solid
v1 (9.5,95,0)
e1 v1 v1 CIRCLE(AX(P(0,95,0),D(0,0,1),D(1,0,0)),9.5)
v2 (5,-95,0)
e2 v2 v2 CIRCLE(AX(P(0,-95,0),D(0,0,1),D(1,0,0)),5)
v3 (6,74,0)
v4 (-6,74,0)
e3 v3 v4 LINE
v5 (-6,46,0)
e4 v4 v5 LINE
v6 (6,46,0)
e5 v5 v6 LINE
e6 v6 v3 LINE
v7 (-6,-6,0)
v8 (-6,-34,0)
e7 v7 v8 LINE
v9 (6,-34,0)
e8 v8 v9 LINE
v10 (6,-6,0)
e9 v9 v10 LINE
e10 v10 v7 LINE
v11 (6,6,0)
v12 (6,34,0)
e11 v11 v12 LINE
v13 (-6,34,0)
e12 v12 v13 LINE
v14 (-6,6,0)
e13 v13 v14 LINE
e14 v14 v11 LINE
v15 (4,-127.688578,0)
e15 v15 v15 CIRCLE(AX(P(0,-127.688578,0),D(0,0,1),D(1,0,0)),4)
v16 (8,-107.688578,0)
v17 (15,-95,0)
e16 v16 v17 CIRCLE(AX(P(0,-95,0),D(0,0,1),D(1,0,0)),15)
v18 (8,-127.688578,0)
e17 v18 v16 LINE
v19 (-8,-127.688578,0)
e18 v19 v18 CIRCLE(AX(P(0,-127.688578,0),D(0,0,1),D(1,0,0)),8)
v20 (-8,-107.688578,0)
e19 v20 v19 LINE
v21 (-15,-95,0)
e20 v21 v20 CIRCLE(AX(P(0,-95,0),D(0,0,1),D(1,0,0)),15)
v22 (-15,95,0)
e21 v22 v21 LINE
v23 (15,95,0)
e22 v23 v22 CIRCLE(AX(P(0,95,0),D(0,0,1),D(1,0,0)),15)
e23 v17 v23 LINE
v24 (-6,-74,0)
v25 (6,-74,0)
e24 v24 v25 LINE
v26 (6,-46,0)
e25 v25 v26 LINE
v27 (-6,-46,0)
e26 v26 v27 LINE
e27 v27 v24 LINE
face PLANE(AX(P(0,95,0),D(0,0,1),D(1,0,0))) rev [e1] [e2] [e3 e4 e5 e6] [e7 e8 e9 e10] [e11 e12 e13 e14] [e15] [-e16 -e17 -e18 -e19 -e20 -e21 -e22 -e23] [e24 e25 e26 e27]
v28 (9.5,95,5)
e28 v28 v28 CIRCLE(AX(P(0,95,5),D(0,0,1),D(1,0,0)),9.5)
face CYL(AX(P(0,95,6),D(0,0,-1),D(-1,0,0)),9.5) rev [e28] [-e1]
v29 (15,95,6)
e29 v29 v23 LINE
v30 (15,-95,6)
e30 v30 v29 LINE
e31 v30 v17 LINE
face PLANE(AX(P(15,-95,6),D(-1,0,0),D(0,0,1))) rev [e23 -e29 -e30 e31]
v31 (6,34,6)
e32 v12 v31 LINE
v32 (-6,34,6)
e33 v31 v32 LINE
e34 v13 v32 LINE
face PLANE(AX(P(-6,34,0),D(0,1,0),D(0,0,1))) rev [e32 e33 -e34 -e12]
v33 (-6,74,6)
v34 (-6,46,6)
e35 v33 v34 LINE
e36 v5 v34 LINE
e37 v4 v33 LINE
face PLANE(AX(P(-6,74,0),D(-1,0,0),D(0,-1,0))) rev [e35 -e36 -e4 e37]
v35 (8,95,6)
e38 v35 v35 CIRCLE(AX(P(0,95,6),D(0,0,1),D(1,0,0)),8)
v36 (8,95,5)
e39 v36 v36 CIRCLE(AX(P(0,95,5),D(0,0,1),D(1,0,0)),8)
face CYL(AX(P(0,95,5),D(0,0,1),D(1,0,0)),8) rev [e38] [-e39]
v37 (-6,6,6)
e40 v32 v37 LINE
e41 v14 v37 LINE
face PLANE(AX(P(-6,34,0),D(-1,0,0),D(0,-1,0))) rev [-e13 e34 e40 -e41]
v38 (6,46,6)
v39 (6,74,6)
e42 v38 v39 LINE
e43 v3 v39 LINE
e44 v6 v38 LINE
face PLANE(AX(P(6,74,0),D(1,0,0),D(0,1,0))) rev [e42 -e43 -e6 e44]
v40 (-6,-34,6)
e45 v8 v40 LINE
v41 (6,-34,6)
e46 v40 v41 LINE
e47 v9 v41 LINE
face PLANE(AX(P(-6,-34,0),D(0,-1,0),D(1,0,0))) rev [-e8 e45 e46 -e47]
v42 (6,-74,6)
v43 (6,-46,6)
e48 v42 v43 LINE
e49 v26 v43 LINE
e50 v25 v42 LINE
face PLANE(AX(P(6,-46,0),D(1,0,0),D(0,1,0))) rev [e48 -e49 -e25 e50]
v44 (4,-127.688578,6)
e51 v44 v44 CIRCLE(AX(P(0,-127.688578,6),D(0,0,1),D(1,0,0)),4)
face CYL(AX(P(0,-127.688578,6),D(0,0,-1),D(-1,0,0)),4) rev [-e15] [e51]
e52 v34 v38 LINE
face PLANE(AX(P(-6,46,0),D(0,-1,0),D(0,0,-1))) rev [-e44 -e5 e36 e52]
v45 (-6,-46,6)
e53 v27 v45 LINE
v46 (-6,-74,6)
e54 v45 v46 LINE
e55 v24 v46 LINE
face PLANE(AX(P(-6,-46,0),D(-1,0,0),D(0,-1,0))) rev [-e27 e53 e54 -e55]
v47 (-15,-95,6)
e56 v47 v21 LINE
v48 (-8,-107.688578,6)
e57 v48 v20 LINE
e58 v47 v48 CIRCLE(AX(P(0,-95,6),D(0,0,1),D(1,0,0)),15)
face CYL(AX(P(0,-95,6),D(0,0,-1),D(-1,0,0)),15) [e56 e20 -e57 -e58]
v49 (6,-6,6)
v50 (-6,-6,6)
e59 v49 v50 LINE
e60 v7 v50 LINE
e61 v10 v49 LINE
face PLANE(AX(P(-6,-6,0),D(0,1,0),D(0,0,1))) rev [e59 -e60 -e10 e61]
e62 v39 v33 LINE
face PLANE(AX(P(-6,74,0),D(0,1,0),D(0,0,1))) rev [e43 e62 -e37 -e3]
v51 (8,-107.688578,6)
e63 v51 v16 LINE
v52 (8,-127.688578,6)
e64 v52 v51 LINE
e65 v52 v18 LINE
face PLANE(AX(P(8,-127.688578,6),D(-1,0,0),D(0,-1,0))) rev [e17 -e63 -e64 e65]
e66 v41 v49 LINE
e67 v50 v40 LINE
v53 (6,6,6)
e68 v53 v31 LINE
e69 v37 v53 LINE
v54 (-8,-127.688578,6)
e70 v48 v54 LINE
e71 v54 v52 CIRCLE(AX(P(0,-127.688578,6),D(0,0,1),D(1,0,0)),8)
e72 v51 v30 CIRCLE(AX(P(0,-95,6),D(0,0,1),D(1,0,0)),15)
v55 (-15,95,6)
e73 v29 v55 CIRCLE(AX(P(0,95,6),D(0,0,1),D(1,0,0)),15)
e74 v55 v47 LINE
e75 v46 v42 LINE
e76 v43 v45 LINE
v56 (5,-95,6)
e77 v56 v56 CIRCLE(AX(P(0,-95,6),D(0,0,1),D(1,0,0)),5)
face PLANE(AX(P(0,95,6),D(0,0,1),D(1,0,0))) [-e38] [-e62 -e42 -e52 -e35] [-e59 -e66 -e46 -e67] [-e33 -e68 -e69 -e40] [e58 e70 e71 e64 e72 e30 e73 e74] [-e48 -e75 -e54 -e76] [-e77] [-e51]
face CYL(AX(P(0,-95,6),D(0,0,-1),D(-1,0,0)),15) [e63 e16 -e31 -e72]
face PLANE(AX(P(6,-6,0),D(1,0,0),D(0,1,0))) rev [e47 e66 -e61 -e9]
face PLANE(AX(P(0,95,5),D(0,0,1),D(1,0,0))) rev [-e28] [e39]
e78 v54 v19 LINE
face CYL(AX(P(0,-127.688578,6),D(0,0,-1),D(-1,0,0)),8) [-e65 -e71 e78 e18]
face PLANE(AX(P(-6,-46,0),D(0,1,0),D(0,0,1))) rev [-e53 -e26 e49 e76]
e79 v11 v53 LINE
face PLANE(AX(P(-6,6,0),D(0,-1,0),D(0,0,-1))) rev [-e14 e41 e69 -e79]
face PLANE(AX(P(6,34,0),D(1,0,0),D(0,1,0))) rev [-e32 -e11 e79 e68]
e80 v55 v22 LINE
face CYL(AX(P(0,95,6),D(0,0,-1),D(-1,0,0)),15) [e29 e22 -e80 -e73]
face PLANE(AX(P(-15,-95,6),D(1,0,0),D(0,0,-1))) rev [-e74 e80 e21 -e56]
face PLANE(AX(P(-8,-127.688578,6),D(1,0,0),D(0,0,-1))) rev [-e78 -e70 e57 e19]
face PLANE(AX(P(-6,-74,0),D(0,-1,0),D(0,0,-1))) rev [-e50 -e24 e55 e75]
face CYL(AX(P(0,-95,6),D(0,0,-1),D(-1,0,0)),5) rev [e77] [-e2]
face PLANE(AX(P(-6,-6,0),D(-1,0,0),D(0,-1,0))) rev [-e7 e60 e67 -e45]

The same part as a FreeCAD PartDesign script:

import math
import FreeCAD as App
import Part
import Sketcher
from FreeCAD import Vector
Q = App.Units.Quantity

doc = App.newDocument("Part")
body = doc.addObject("PartDesign::Body", "Body")

sketch1 = body.newObject("Sketcher::SketchObject", "Sketch")
sketch1.AttachmentSupport = (doc.getObject("XY_Plane"), [""])
sketch1.MapMode = "FlatFace"
sketch1.addGeometry([
    Part.LineSegment(Vector(-8, -107.688578, 0), Vector(-8, -127.688578, 0)),
    Part.ArcOfCircle(Part.Circle(Vector(0, -127.688578, 0), Vector(0, 0, 1), 8), math.radians(180), math.radians(360)),
    Part.LineSegment(Vector(8, -127.688578, 0), Vector(8, -107.688578, 0)),
    Part.ArcOfCircle(Part.Circle(Vector(0, -95, 0), Vector(0, 0, 1), 15), math.radians(-57.769047), math.radians(0)),
    Part.LineSegment(Vector(15, -95, 0), Vector(15, 95, 0)),
    Part.ArcOfCircle(Part.Circle(Vector(0, 95, 0), Vector(0, 0, 1), 15), math.radians(0), math.radians(180)),
    Part.LineSegment(Vector(-15, 95, 0), Vector(-15, -95, 0)),
    Part.ArcOfCircle(Part.Circle(Vector(0, -95, 0), Vector(0, 0, 1), 15), math.radians(180), math.radians(237.769047)),
    Part.Circle(Vector(0, -127.688578, 0), Vector(0, 0, 1), 4),
    Part.Circle(Vector(0, -95, 0), Vector(0, 0, 1), 5),
    Part.Circle(Vector(0, 95, 0), Vector(0, 0, 1), 9.5),
], False)
sketch1.addConstraint([
    Sketcher.Constraint("Tangent", 0, 2, 1, 1),
    Sketcher.Constraint("Tangent", 1, 2, 2, 1),
    Sketcher.Constraint("Coincident", 2, 2, 3, 1),
    Sketcher.Constraint("Tangent", 3, 2, 4, 1),
    Sketcher.Constraint("Tangent", 4, 2, 5, 1),
    Sketcher.Constraint("Tangent", 5, 2, 6, 1),
    Sketcher.Constraint("Tangent", 6, 2, 7, 1),
    Sketcher.Constraint("Coincident", 7, 2, 0, 1),
    Sketcher.Constraint("Vertical", 0),
    Sketcher.Constraint("Vertical", 2),
    Sketcher.Constraint("Vertical", 4),
    Sketcher.Constraint("Vertical", 6),
    Sketcher.Constraint("Coincident", 7, 3, 3, 3),
    Sketcher.Constraint("Coincident", 8, 3, 1, 3),
    Sketcher.Constraint("Coincident", 9, 3, 3, 3),
    Sketcher.Constraint("Coincident", 10, 3, 5, 3),
    Sketcher.Constraint("Equal", 3, 5),
    Sketcher.Constraint("Symmetric", 3, 3, 5, 3, -1, 1),
    Sketcher.Constraint("PointOnObject", 1, 3, -2),
    Sketcher.Constraint("Diameter", 8, Q("8 mm")),
    Sketcher.Constraint("Diameter", 9, Q("10 mm")),
    Sketcher.Constraint("Diameter", 10, Q("19 mm")),
    Sketcher.Constraint("Radius", 1, Q("8 mm")),
    Sketcher.Constraint("Radius", 3, Q("15 mm")),
    Sketcher.Constraint("DistanceY", 0, 2, 0, 1, Q("20 mm")),
    Sketcher.Constraint("DistanceY", 4, 1, 4, 2, Q("190 mm")),
])
pad1 = body.newObject("PartDesign::Pad", "Pad")
pad1.Profile = sketch1
pad1.Length = 6

sketch2 = body.newObject("Sketcher::SketchObject", "Sketch001")
sketch2.AttachmentSupport = (doc.getObject("XY_Plane"), [""])
sketch2.MapMode = "FlatFace"
sketch2.AttachmentOffset = App.Placement(Vector(0, 0, 6), App.Rotation())
sketch2.addGeometry([
    Part.LineSegment(Vector(-6, 74, 0), Vector(-6, 46, 0)),
    Part.LineSegment(Vector(-6, 46, 0), Vector(6, 46, 0)),
    Part.LineSegment(Vector(6, 46, 0), Vector(6, 74, 0)),
    Part.LineSegment(Vector(6, 74, 0), Vector(-6, 74, 0)),
    Part.LineSegment(Vector(-6, 34, 0), Vector(-6, 6, 0)),
    Part.LineSegment(Vector(-6, 6, 0), Vector(6, 6, 0)),
    Part.LineSegment(Vector(6, 6, 0), Vector(6, 34, 0)),
    Part.LineSegment(Vector(6, 34, 0), Vector(-6, 34, 0)),
    Part.LineSegment(Vector(-6, -6, 0), Vector(-6, -34, 0)),
    Part.LineSegment(Vector(-6, -34, 0), Vector(6, -34, 0)),
    Part.LineSegment(Vector(6, -34, 0), Vector(6, -6, 0)),
    Part.LineSegment(Vector(6, -6, 0), Vector(-6, -6, 0)),
    Part.LineSegment(Vector(-6, -46, 0), Vector(-6, -74, 0)),
    Part.LineSegment(Vector(-6, -74, 0), Vector(6, -74, 0)),
    Part.LineSegment(Vector(6, -74, 0), Vector(6, -46, 0)),
    Part.LineSegment(Vector(6, -46, 0), Vector(-6, -46, 0)),
], False)
sketch2.addConstraint([
    Sketcher.Constraint("Coincident", 0, 2, 1, 1),
    Sketcher.Constraint("Coincident", 1, 2, 2, 1),
    Sketcher.Constraint("Coincident", 2, 2, 3, 1),
    Sketcher.Constraint("Coincident", 3, 2, 0, 1),
    Sketcher.Constraint("Coincident", 4, 2, 5, 1),
    Sketcher.Constraint("Coincident", 5, 2, 6, 1),
    Sketcher.Constraint("Coincident", 6, 2, 7, 1),
    Sketcher.Constraint("Coincident", 7, 2, 4, 1),
    Sketcher.Constraint("Coincident", 8, 2, 9, 1),
    Sketcher.Constraint("Coincident", 9, 2, 10, 1),
    Sketcher.Constraint("Coincident", 10, 2, 11, 1),
    Sketcher.Constraint("Coincident", 11, 2, 8, 1),
    Sketcher.Constraint("Coincident", 12, 2, 13, 1),
    Sketcher.Constraint("Coincident", 13, 2, 14, 1),
    Sketcher.Constraint("Coincident", 14, 2, 15, 1),
    Sketcher.Constraint("Coincident", 15, 2, 12, 1),
    Sketcher.Constraint("Vertical", 0),
    Sketcher.Constraint("Horizontal", 1),
    Sketcher.Constraint("Vertical", 2),
    Sketcher.Constraint("Horizontal", 3),
    Sketcher.Constraint("Vertical", 4),
    Sketcher.Constraint("Horizontal", 5),
    Sketcher.Constraint("Vertical", 6),
    Sketcher.Constraint("Horizontal", 7),
    Sketcher.Constraint("Vertical", 8),
    Sketcher.Constraint("Horizontal", 9),
    Sketcher.Constraint("Vertical", 10),
    Sketcher.Constraint("Horizontal", 11),
    Sketcher.Constraint("Vertical", 12),
    Sketcher.Constraint("Horizontal", 13),
    Sketcher.Constraint("Vertical", 14),
    Sketcher.Constraint("Horizontal", 15),
    Sketcher.Constraint("Symmetric", 6, 2, 8, 2, -1, 1),
    Sketcher.Constraint("Symmetric", 4, 2, 10, 2, -1, 1),
    Sketcher.Constraint("Symmetric", 2, 2, 12, 2, -1, 1),
    Sketcher.Constraint("Symmetric", 0, 2, 14, 2, -1, 1),
    Sketcher.Constraint("Vertical", 3, 2, 4, 2),
    Sketcher.Constraint("Vertical", 2, 2, 5, 2),
    Sketcher.Constraint("Vertical", 7, 2, 8, 2),
    Sketcher.Constraint("Equal", 2, 4),
    Sketcher.Constraint("DistanceX", 1, 1, 1, 2, Q("12 mm")),
    Sketcher.Constraint("DistanceY", 0, 2, 0, 1, Q("28 mm")),
    Sketcher.Constraint("DistanceY", -1, 1, 0, 2, Q("46 mm")),
    Sketcher.Constraint("DistanceY", -1, 1, 4, 2, Q("6 mm")),
])
pocket1 = body.newObject("PartDesign::Pocket", "Pocket")
pocket1.Profile = sketch2
pocket1.Length = 6

sketch3 = body.newObject("Sketcher::SketchObject", "Sketch002")
sketch3.AttachmentSupport = (doc.getObject("XY_Plane"), [""])
sketch3.MapMode = "FlatFace"
sketch3.AttachmentOffset = App.Placement(Vector(0, 0, 5), App.Rotation())
sketch3.addGeometry([
    Part.Circle(Vector(0, 95, 0), Vector(0, 0, 1), 9.5),
    Part.Circle(Vector(0, 95, 0), Vector(0, 0, 1), 8),
], False)
sketch3.addConstraint([
    Sketcher.Constraint("Coincident", 1, 3, 0, 3),
    Sketcher.Constraint("PointOnObject", 0, 3, -2),
    Sketcher.Constraint("Diameter", 0, Q("19 mm")),
    Sketcher.Constraint("Diameter", 1, Q("16 mm")),
    Sketcher.Constraint("DistanceY", -1, 1, 0, 3, Q("95 mm")),
])
pad2 = body.newObject("PartDesign::Pad", "Pad001")
pad2.Profile = sketch3
pad2.Length = 1

doc.recompute()
